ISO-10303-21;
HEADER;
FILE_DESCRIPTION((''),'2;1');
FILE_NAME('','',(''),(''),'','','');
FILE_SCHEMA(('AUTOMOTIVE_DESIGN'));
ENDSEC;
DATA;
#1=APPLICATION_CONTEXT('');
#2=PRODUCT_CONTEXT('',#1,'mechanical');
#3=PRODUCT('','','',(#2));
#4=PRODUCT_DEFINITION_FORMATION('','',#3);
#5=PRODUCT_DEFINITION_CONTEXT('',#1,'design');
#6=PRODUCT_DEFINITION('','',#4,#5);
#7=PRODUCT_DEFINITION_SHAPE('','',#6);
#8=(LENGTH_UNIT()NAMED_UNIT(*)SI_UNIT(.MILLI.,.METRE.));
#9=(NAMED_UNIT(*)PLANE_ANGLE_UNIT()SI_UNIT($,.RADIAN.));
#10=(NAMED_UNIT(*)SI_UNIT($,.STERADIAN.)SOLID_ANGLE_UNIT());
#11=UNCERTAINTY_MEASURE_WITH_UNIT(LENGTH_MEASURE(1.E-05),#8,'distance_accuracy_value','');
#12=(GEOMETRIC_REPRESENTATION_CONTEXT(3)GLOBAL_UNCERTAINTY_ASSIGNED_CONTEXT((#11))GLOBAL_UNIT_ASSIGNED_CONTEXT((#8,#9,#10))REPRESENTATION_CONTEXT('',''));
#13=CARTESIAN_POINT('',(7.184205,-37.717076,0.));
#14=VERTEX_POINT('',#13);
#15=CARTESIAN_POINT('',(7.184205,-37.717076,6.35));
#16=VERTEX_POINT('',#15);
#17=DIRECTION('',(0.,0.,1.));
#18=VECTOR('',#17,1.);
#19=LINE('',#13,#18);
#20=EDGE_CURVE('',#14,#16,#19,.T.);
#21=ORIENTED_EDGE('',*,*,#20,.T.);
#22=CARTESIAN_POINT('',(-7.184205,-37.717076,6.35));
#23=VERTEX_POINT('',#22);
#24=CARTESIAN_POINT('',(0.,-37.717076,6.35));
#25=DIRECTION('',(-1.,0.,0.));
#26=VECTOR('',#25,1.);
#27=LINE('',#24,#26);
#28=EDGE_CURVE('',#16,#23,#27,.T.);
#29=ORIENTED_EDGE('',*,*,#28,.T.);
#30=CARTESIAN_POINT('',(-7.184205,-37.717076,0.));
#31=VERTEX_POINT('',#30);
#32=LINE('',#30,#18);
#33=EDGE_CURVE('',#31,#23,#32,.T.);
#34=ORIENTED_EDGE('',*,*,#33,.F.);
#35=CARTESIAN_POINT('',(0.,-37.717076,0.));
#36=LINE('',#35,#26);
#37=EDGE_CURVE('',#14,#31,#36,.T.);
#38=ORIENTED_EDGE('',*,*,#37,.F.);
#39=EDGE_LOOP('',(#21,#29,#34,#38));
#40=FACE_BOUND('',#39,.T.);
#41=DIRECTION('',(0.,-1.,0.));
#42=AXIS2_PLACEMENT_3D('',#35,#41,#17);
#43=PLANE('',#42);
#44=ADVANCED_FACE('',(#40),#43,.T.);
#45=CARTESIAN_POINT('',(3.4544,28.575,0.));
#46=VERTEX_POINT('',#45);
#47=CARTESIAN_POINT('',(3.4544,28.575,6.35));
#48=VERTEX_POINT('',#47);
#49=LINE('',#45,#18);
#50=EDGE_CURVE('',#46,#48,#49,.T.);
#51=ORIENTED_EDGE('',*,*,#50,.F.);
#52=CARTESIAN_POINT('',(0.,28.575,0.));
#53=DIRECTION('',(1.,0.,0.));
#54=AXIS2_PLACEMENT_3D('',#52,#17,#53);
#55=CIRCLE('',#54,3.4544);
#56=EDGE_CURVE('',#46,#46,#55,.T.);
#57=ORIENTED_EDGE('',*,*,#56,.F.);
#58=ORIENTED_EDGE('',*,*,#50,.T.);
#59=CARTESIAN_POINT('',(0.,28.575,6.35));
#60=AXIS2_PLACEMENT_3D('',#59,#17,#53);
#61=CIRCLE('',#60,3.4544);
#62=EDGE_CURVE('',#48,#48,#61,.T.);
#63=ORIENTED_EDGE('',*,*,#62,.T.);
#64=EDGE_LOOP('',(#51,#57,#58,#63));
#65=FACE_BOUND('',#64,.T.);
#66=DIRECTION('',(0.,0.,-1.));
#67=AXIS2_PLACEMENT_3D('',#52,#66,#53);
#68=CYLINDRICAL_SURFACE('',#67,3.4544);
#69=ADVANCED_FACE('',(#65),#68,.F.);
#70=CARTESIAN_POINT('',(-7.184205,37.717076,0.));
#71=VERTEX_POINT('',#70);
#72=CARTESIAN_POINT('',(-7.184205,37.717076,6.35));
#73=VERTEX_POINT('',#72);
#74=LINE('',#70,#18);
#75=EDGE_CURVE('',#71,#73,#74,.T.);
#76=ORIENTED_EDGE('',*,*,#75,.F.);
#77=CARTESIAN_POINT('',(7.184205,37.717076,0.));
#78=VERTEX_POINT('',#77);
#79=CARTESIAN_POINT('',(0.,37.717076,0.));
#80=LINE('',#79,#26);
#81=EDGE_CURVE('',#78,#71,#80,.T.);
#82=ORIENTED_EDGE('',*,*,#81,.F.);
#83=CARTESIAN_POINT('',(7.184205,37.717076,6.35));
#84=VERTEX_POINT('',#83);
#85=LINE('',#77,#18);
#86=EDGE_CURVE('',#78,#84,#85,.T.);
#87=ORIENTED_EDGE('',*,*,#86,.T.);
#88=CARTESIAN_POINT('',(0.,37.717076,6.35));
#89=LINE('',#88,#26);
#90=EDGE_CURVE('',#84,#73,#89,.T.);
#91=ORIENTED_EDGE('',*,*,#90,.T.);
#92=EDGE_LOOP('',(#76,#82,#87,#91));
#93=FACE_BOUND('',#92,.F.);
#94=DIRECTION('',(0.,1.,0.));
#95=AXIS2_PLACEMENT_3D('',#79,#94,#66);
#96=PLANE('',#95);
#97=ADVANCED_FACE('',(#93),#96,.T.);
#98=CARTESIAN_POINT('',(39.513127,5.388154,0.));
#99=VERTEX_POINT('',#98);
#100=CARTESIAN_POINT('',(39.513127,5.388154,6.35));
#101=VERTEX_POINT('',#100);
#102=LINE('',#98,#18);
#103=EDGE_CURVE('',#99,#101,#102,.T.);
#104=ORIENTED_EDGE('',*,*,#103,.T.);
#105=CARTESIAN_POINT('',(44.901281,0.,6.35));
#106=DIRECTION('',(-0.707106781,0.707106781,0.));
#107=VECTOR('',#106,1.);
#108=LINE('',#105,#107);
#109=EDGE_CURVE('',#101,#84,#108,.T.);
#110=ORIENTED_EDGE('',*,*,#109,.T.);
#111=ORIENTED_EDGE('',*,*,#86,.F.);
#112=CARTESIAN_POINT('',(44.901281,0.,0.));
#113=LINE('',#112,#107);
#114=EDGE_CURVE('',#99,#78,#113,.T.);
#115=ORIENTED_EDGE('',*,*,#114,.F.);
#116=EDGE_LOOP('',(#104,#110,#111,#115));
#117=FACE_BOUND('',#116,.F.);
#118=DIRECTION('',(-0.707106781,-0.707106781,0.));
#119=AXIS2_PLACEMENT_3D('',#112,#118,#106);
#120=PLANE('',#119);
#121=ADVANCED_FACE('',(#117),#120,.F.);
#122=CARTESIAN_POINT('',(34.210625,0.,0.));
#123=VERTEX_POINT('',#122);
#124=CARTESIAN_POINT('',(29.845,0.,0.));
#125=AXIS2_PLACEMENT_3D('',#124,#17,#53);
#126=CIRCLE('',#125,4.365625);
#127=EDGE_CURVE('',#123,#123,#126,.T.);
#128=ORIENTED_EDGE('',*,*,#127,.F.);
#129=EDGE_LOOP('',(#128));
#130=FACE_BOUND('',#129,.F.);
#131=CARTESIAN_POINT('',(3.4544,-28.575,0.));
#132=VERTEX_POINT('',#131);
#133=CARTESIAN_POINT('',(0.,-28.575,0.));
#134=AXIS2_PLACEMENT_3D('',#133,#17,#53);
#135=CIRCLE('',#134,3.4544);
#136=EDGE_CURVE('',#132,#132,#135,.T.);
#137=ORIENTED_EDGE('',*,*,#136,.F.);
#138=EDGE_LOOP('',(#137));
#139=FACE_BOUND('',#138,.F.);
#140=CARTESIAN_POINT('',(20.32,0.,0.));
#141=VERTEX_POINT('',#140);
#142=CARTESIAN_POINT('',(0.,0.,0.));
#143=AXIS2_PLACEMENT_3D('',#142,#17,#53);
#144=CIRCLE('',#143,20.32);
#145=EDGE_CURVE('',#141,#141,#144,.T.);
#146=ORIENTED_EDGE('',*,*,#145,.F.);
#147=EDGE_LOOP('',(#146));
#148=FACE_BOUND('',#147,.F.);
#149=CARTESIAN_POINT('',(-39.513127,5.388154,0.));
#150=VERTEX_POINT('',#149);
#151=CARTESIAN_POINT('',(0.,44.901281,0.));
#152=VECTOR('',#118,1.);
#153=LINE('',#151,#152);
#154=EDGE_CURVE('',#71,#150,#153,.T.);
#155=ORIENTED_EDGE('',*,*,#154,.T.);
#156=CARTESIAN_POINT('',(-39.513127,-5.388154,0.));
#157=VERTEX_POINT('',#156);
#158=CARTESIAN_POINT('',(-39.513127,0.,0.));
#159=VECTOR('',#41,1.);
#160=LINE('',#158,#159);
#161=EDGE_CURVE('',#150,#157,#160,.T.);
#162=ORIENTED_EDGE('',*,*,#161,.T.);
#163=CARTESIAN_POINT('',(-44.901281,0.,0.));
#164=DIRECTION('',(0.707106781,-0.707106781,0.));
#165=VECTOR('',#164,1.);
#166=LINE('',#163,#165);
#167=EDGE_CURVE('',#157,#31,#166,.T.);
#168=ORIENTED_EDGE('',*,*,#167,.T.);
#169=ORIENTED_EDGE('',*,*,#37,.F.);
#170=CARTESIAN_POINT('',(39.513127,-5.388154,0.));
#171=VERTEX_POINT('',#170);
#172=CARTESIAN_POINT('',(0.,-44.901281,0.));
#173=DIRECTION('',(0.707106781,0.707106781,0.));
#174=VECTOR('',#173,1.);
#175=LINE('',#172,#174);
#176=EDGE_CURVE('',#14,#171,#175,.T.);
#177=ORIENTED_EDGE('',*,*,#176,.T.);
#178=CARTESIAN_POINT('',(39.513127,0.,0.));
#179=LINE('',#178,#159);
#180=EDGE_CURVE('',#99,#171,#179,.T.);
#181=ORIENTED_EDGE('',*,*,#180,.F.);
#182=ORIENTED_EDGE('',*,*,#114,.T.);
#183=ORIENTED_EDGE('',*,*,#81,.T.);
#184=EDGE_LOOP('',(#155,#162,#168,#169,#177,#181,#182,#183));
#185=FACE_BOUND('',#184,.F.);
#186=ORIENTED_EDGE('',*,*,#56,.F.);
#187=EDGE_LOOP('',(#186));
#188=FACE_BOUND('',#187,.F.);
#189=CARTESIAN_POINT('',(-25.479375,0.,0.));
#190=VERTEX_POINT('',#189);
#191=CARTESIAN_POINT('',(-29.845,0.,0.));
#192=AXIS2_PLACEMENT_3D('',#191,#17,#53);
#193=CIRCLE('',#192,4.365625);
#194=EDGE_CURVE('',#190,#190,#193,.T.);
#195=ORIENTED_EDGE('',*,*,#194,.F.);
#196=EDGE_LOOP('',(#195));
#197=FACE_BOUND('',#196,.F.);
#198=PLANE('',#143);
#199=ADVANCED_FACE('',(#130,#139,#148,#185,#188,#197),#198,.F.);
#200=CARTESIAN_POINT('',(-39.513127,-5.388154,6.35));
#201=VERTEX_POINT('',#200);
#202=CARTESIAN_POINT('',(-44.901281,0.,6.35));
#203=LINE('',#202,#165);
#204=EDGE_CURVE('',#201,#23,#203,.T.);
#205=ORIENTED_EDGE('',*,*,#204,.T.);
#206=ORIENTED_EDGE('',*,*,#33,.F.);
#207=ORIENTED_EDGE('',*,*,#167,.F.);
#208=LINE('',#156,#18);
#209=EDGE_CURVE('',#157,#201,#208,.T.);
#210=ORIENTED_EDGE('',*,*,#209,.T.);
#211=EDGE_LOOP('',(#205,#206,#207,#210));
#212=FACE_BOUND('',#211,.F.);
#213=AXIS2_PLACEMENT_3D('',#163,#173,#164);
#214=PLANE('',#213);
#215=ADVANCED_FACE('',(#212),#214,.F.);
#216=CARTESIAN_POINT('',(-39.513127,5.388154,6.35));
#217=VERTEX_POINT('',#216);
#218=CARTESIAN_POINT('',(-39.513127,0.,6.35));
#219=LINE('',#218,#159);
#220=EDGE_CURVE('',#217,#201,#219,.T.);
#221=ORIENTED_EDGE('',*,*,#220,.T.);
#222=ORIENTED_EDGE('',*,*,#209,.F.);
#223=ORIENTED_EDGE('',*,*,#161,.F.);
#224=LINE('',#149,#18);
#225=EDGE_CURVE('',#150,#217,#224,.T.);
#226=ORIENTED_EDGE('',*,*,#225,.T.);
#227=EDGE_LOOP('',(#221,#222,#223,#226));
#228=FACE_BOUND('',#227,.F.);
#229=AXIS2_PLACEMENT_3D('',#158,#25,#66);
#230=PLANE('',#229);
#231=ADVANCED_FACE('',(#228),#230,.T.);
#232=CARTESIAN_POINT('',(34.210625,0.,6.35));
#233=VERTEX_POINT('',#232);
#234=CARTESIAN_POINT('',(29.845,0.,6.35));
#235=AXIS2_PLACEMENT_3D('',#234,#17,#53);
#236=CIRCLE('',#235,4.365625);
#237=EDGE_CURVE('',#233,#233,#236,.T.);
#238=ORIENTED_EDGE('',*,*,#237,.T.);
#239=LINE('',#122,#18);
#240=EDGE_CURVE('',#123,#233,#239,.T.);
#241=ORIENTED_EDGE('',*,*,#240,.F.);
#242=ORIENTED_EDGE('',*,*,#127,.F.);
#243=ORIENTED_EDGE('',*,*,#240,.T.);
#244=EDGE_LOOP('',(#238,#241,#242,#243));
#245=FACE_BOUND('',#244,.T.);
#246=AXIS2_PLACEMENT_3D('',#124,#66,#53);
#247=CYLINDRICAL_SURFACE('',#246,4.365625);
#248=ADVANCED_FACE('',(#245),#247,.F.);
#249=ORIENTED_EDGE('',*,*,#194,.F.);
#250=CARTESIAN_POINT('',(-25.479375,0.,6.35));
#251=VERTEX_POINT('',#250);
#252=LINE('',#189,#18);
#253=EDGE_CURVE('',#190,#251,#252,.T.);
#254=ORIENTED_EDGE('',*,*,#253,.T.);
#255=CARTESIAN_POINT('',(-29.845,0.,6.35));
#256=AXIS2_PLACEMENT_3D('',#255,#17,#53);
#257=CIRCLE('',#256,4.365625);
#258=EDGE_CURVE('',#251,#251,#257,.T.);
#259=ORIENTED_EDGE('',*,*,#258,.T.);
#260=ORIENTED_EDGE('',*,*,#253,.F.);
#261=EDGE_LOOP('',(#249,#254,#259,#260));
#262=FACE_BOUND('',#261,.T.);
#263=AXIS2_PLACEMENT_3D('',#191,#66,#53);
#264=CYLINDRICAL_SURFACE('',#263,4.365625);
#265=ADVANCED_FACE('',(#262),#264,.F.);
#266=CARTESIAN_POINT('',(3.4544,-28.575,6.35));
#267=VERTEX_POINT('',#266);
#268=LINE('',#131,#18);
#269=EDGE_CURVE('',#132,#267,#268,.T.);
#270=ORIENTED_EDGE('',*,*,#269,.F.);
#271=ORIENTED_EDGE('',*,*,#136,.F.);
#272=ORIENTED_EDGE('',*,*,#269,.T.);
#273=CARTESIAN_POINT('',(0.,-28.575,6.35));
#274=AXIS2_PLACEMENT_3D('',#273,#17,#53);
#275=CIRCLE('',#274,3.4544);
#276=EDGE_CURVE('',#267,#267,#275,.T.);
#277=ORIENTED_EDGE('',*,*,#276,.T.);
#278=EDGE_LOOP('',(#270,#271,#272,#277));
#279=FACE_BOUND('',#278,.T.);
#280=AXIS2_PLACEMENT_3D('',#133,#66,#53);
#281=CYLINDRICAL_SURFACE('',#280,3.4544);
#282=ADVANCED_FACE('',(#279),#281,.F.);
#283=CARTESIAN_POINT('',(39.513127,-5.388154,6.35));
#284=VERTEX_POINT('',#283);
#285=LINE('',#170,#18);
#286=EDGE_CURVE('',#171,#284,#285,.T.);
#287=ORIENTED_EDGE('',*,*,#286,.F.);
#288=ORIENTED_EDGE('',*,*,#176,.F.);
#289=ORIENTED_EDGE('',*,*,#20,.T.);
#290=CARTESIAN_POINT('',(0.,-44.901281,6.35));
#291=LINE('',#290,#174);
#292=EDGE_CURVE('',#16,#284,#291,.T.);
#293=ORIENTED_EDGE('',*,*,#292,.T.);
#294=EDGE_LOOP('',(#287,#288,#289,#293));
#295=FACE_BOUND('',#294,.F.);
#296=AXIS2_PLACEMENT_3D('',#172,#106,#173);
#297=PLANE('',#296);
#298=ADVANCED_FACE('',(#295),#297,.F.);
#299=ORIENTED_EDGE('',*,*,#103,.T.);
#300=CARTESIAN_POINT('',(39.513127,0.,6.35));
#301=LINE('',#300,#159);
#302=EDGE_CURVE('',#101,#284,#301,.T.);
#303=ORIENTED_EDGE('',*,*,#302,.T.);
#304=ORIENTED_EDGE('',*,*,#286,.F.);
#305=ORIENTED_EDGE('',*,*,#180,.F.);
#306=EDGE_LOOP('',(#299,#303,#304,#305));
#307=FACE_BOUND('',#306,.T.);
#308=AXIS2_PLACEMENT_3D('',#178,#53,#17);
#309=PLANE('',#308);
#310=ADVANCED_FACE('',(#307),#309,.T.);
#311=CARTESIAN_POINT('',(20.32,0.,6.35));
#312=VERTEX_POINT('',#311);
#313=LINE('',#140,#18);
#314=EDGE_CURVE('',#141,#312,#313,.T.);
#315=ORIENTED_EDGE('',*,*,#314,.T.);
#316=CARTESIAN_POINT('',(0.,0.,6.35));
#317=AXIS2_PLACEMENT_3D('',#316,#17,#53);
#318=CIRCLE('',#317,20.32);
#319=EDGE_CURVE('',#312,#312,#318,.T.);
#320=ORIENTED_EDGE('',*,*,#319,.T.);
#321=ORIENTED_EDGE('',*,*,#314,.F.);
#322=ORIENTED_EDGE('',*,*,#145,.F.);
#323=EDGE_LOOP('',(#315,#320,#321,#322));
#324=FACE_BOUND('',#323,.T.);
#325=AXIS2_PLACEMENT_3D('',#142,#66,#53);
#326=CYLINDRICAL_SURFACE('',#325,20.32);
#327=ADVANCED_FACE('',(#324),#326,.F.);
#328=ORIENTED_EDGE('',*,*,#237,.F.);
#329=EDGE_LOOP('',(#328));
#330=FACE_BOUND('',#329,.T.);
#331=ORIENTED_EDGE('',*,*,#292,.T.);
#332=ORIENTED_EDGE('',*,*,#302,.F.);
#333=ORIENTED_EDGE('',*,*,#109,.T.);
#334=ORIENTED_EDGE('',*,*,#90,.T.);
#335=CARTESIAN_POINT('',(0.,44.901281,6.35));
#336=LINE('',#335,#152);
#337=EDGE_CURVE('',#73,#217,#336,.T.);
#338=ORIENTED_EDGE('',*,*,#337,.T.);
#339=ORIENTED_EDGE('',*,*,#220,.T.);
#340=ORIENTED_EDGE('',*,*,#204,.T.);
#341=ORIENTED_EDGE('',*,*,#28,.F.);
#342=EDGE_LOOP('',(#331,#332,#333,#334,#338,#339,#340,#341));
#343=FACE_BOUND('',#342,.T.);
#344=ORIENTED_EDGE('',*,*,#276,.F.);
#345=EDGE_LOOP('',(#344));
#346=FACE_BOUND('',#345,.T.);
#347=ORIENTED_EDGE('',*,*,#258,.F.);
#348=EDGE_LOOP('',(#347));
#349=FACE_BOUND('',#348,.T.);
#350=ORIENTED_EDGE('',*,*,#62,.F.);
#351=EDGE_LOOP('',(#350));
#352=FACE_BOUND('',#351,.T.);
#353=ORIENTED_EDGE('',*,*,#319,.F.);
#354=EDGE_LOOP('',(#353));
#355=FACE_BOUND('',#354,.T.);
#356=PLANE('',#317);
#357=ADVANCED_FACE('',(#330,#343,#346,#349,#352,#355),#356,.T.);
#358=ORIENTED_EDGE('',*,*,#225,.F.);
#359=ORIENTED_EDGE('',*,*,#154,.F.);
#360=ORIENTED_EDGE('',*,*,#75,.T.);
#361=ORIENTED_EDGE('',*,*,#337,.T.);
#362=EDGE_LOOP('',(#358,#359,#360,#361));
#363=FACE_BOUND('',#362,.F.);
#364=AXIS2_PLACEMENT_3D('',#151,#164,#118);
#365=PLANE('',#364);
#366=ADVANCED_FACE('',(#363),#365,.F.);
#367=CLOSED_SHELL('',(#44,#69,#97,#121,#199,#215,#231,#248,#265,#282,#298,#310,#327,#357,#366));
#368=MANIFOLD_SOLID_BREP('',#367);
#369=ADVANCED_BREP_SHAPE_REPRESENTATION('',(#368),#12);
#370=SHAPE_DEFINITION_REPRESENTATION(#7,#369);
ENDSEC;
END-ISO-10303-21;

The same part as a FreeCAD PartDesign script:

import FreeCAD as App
import Part
import Sketcher

V = App.Vector
Q = App.Units.Quantity


def edges_at(feature, points):
    """Names of the edges that pass closest to the given points."""
    edges = feature.Shape.Edges
    near = lambda p: min(range(len(edges)), key=lambda i: edges[i].distToShape(Part.Vertex(*p))[0])
    return sorted({f"Edge{near(p) + 1}" for p in points})


def add_polygon(sketch, points):
    """Adds a closed chain of lines whose ends are joined by coincident constraints."""
    first, n = sketch.GeometryCount, len(points)
    for a, b in zip(points, points[1:] + points[:1]):
        sketch.addGeometry(Part.LineSegment(App.Vector(*a, 0), App.Vector(*b, 0)), False)
    for i in range(n):
        sketch.addConstraint(Sketcher.Constraint("Coincident", first + i, 2, first + (i + 1) % n, 1))

doc = App.newDocument("Part")
body = doc.addObject("PartDesign::Body", "Body")

sketch1 = body.newObject("Sketcher::SketchObject", "Sketch")
sketch1.AttachmentSupport = (doc.getObject("XY_Plane"), [""])
sketch1.MapMode = "FlatFace"
add_polygon(sketch1, [(44.9, 0), (0, 44.9), (-44.9, 0), (0, -44.9)])
sketch1.addGeometry(Part.Circle(V(0, -28.6, 0), V(0, 0, 1), 3.5), False)
sketch1.addGeometry(Part.Circle(V(-29.8, 0, 0), V(0, 0, 1), 4.4), False)
sketch1.addGeometry(Part.Circle(V(0, 0, 0), V(0, 0, 1), 20.3), False)
sketch1.addGeometry(Part.Circle(V(29.8, 0, 0), V(0, 0, 1), 4.4), False)
sketch1.addGeometry(Part.Circle(V(0, 28.6, 0), V(0, 0, 1), 3.5), False)
sketch1.addConstraint([
    Sketcher.Constraint("Coincident", 6, 3, -1, 1),
    Sketcher.Constraint("Equal", 5, 7),
    Sketcher.Constraint("Equal", 4, 8),
    Sketcher.Constraint("Symmetric", 5, 3, 7, 3, -1, 1),
    Sketcher.Constraint("Symmetric", 4, 3, 8, 3, -1, 1),
    Sketcher.Constraint("Symmetric", 0, 2, 2, 2, -1, 1),
    Sketcher.Constraint("Symmetric", 1, 2, 3, 2, -1, 1),
    Sketcher.Constraint("PointOnObject", 4, 3, -2),
    Sketcher.Constraint("PointOnObject", 5, 3, -1),
    Sketcher.Constraint("PointOnObject", 0, 2, -2),
    Sketcher.Constraint("PointOnObject", 1, 2, -1),
    Sketcher.Constraint("Perpendicular", 0, 1),
    Sketcher.Constraint("Diameter", 6, Q("1.6 in")),
    Sketcher.Constraint("Diameter", 4, Q("0.272 in")),
    Sketcher.Constraint("Diameter", 5, Q("0.34375 in")),
    Sketcher.Constraint("Distance", 0, Q("2.5 in")),
    Sketcher.Constraint("DistanceX", 5, 3, 7, 3, Q("2.35 in")),
    Sketcher.Constraint("DistanceY", 4, 3, 8, 3, Q("2.25 in")),
])
pad1 = body.newObject("PartDesign::Pad", "Pad")
pad1.Profile = sketch1
pad1.Length = Q("0.25 in")
doc.recompute()

chamfer = body.newObject("PartDesign::Chamfer", "Chamfer")
chamfer.Base = (pad1, edges_at(pad1, [(0, 44.901, 3.175), (0, -44.901, 3.175)]))
chamfer.Size = Q("0.4 in")
doc.recompute()

chamfer2 = body.newObject("PartDesign::Chamfer", "Chamfer001")
chamfer2.Base = (chamfer, edges_at(chamfer, [(-44.901, 0, 3.175), (44.901, 0, 3.175)]))
chamfer2.Size = Q("0.3 in")

doc.recompute()
